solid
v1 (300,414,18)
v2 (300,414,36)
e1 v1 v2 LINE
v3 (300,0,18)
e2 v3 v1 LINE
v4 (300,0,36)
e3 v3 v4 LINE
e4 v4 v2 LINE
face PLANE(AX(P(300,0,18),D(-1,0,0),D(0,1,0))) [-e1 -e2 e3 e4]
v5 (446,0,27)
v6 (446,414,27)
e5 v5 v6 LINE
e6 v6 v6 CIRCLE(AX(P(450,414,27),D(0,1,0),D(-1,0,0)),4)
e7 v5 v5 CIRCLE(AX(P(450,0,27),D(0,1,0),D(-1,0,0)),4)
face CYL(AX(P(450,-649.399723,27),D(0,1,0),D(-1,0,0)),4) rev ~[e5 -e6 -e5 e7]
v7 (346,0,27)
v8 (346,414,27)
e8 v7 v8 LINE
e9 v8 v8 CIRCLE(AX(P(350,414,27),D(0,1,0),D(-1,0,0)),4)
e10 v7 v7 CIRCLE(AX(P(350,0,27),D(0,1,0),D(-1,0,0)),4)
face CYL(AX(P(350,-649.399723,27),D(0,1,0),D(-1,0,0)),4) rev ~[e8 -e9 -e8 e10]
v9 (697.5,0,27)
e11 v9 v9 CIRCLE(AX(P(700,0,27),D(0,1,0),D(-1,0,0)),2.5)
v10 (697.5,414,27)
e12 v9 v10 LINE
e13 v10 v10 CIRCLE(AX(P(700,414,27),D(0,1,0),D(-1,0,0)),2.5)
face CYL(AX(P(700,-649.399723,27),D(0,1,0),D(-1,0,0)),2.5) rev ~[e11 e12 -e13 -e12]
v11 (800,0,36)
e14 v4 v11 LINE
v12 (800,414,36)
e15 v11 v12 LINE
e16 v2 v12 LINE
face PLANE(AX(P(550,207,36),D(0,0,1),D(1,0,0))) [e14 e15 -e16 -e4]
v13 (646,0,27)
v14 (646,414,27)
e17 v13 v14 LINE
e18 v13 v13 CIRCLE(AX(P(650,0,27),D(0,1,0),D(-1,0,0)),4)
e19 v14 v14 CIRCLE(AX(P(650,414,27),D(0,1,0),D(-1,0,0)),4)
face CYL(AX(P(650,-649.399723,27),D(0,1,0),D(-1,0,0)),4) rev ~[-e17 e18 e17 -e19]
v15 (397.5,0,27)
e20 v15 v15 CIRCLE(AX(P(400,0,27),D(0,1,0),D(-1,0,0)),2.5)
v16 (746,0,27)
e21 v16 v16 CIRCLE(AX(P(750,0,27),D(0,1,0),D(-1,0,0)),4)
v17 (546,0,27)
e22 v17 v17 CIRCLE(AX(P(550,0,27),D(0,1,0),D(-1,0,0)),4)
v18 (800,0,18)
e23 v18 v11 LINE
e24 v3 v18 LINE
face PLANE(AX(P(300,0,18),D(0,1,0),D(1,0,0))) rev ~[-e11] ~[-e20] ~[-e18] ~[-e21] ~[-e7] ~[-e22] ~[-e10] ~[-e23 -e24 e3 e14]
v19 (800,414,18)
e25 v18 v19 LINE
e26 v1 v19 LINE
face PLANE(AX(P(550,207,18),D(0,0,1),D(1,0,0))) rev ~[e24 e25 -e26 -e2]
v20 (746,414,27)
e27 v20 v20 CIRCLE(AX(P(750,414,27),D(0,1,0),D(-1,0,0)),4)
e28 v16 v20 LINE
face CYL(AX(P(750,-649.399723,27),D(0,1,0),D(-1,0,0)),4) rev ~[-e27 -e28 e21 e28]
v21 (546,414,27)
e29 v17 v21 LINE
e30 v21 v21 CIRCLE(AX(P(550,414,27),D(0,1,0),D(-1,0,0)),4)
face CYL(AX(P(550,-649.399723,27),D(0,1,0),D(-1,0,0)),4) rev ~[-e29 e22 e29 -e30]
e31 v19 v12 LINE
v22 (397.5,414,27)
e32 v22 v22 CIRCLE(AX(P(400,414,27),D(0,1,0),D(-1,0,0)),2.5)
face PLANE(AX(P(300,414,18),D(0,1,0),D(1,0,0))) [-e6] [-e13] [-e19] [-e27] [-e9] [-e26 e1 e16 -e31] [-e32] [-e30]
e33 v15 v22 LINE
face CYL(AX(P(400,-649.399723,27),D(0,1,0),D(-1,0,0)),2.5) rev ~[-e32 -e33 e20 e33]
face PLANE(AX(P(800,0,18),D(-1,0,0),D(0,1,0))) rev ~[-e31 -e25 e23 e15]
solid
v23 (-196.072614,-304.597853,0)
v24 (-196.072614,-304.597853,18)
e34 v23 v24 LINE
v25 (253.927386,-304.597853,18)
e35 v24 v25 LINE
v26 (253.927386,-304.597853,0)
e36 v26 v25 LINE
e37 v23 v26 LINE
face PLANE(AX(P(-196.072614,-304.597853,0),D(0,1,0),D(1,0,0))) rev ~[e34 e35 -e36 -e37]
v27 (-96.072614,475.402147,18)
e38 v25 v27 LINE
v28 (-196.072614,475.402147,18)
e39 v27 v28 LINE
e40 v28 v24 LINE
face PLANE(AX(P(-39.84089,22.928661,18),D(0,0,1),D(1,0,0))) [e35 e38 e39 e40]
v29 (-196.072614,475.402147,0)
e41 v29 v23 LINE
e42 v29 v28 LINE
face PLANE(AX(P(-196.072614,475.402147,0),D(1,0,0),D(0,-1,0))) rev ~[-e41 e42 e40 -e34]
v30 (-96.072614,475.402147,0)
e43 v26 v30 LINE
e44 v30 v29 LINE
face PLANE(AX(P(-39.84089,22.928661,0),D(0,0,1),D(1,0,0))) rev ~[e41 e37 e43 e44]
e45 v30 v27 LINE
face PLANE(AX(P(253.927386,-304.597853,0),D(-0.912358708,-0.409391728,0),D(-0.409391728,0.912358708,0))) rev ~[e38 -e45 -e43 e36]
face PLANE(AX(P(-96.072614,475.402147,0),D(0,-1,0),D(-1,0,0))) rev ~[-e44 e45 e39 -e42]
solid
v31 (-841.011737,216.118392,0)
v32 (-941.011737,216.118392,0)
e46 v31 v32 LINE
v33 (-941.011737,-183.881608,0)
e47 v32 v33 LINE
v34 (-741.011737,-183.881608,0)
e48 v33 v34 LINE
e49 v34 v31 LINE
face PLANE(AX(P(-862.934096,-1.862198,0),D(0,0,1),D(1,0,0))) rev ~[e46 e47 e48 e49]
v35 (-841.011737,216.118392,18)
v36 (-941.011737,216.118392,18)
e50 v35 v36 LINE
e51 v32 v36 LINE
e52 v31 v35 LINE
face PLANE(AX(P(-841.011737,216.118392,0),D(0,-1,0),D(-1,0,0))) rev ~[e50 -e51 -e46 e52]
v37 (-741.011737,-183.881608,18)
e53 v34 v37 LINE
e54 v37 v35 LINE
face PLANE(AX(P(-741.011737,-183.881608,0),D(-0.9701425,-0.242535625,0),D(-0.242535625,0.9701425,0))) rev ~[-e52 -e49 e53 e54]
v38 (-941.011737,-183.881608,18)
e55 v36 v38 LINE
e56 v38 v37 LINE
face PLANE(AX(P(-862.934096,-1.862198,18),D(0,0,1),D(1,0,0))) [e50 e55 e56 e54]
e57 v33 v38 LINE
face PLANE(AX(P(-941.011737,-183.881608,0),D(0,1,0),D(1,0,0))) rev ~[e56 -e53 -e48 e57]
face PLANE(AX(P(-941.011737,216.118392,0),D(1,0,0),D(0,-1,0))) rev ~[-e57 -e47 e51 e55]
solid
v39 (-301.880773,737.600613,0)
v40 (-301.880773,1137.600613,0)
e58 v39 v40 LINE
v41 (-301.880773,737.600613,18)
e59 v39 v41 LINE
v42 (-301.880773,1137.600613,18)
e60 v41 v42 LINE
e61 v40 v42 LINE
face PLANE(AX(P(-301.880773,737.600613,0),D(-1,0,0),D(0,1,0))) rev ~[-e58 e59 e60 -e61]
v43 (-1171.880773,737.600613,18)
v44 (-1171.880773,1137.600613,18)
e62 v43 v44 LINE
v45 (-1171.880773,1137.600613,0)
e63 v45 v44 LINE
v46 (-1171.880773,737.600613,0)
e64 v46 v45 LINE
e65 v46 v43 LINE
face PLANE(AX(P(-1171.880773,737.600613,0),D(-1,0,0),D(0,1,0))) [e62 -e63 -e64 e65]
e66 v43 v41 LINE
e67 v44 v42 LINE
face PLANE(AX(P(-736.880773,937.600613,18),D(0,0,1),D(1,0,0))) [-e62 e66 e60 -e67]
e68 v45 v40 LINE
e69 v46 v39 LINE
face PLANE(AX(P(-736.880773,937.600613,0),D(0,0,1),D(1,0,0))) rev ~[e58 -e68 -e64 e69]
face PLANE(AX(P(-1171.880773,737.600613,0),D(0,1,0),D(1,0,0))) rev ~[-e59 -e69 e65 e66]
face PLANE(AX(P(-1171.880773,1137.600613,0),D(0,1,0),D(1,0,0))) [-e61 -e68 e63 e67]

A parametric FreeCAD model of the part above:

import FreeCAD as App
import Part
import Sketcher
from FreeCAD import Vector
Q = App.Units.Quantity


def add_polygon(sketch, points):
    """Adds a closed chain of lines whose ends are joined by coincident constraints."""
    first, n = sketch.GeometryCount, len(points)
    for a, b in zip(points, points[1:] + points[:1]):
        sketch.addGeometry(Part.LineSegment(App.Vector(*a, 0), App.Vector(*b, 0)), False)
    for i in range(n):
        sketch.addConstraint(Sketcher.Constraint("Coincident", first + i, 2, first + (i + 1) % n, 1))

doc = App.newDocument("Part")
body = doc.addObject("PartDesign::Body", "Body")

sketch1 = doc.addObject("Sketcher::SketchObject", "Sketch")
body.addObject(sketch1)
sketch1.AttachmentSupport = (doc.XY_Plane, [""])
sketch1.MapMode = "FlatFace"
add_polygon(sketch1, [(-196, 475), (-196, -305), (254, -305), (-96, 475)])
sketch1.addConstraint([
    Sketcher.Constraint("Vertical", 0),
    Sketcher.Constraint("Horizontal", 1),
    Sketcher.Constraint("Horizontal", 3),
    Sketcher.Constraint("DistanceX", 1, 1, 1, 2, Q("450 mm")),
    Sketcher.Constraint("DistanceX", 3, 2, 3, 1, Q("100 mm")),
    Sketcher.Constraint("DistanceY", 0, 2, 0, 1, Q("780 mm")),
    Sketcher.Constraint("DistanceX", 0, 2, -1, 1, Q("196.072614 mm")),
    Sketcher.Constraint("DistanceY", 0, 2, -1, 1, Q("304.597853 mm")),
])
pad1 = doc.addObject("PartDesign::Pad", "Pad")
body.addObject(pad1)
pad1.Profile = sketch1
pad1.Length = 18
body2 = doc.addObject("PartDesign::Body", "Body001")

sketch2 = doc.addObject("Sketcher::SketchObject", "Sketch001")
body2.addObject(sketch2)
sketch2.AttachmentSupport = (doc.getObject("XY_Plane001"), [""])
sketch2.MapMode = "FlatFace"
sketch2.AttachmentOffset = App.Placement(Vector(0, 0, 18), App.Rotation())
add_polygon(sketch2, [(300, 414), (300, 0), (800, 0), (800, 414)])
sketch2.addConstraint([
    Sketcher.Constraint("Vertical", 0),
    Sketcher.Constraint("Horizontal", 1),
    Sketcher.Constraint("Vertical", 2),
    Sketcher.Constraint("Horizontal", 3),
    Sketcher.Constraint("PointOnObject", 0, 2, -1),
    Sketcher.Constraint("DistanceX", 1, 1, 1, 2, Q("500 mm")),
    Sketcher.Constraint("DistanceY", 0, 2, 0, 1, Q("414 mm")),
    Sketcher.Constraint("DistanceX", -1, 1, 0, 2, Q("300 mm")),
])
pad2 = doc.addObject("PartDesign::Pad", "Pad001")
body2.addObject(pad2)
pad2.Profile = sketch2
pad2.Length = 18

sketch3 = doc.addObject("Sketcher::SketchObject", "Sketch002")
body2.addObject(sketch3)
sketch3.AttachmentSupport = (doc.getObject("XY_Plane001"), [""])
sketch3.MapMode = "FlatFace"
sketch3.AttachmentOffset = App.Placement(Vector(0, 0, 18), App.Rotation())
add_polygon(sketch3, [(300, 414), (300, 0), (800, 0), (800, 414)])
sketch3.addConstraint([
    Sketcher.Constraint("Vertical", 0),
    Sketcher.Constraint("Horizontal", 1),
    Sketcher.Constraint("Vertical", 2),
    Sketcher.Constraint("Horizontal", 3),
    Sketcher.Constraint("PointOnObject", 0, 2, -1),
    Sketcher.Constraint("DistanceX", 1, 1, 1, 2, Q("500 mm")),
    Sketcher.Constraint("DistanceY", 0, 2, 0, 1, Q("414 mm")),
    Sketcher.Constraint("DistanceX", -1, 1, 0, 2, Q("300 mm")),
])
pad3 = doc.addObject("PartDesign::Pad", "Pad002")
body2.addObject(pad3)
pad3.Profile = sketch3
pad3.Length = 18

sketch4 = doc.addObject("Sketcher::SketchObject", "Sketch003")
body2.addObject(sketch4)
sketch4.AttachmentSupport = (doc.getObject("XZ_Plane001"), [""])
sketch4.MapMode = "FlatFace"
sketch4.addGeometry([
    Part.Circle(Vector(350, 27, 0), Vector(0, 0, 1), 4),
    Part.Circle(Vector(450, 27, 0), Vector(0, 0, 1), 4),
    Part.Circle(Vector(550, 27, 0), Vector(0, 0, 1), 4),
    Part.Circle(Vector(650, 27, 0), Vector(0, 0, 1), 4),
    Part.Circle(Vector(750, 27, 0), Vector(0, 0, 1), 4),
], False)
sketch4.addConstraint([
    Sketcher.Constraint("Equal", 0, 1),
    Sketcher.Constraint("Equal", 1, 2),
    Sketcher.Constraint("Equal", 2, 3),
    Sketcher.Constraint("Equal", 3, 4),
    Sketcher.Constraint("Horizontal", 0, 3, 1, 3),
    Sketcher.Constraint("Horizontal", 1, 3, 2, 3),
    Sketcher.Constraint("Horizontal", 2, 3, 3, 3),
    Sketcher.Constraint("Horizontal", 3, 3, 4, 3),
    Sketcher.Constraint("Diameter", 0, Q("8 mm")),
    Sketcher.Constraint("DistanceX", -1, 1, 0, 3, Q("350 mm")),
    Sketcher.Constraint("DistanceY", -1, 1, 0, 3, Q("27 mm")),
    Sketcher.Constraint("DistanceX", -1, 1, 1, 3, Q("450 mm")),
    Sketcher.Constraint("DistanceX", -1, 1, 2, 3, Q("550 mm")),
    Sketcher.Constraint("DistanceX", -1, 1, 3, 3, Q("650 mm")),
    Sketcher.Constraint("DistanceX", -1, 1, 4, 3, Q("750 mm")),
])
doc.recompute()
hole = doc.addObject("PartDesign::Hole", "Hole")
body2.addObject(hole)
hole.Profile = sketch4
hole.ThreadType = "None"
hole.Diameter = 8
hole.DepthType = "ThroughAll"

sketch5 = doc.addObject("Sketcher::SketchObject", "Sketch004")
body2.addObject(sketch5)
sketch5.AttachmentSupport = (doc.getObject("XZ_Plane001"), [""])
sketch5.MapMode = "FlatFace"
sketch5.addGeometry([
    Part.Circle(Vector(400, 27, 0), Vector(0, 0, 1), 2.5),
    Part.Circle(Vector(700, 27, 0), Vector(0, 0, 1), 2.5),
], False)
sketch5.addConstraint([
    Sketcher.Constraint("Equal", 0, 1),
    Sketcher.Constraint("Horizontal", 0, 3, 1, 3),
    Sketcher.Constraint("Diameter", 0, Q("5 mm")),
    Sketcher.Constraint("DistanceX", -1, 1, 0, 3, Q("400 mm")),
    Sketcher.Constraint("DistanceY", -1, 1, 0, 3, Q("27 mm")),
    Sketcher.Constraint("DistanceX", -1, 1, 1, 3, Q("700 mm")),
])
doc.recompute()
hole2 = doc.addObject("PartDesign::Hole", "Hole001")
body2.addObject(hole2)
hole2.Profile = sketch5
hole2.ThreadType = "None"
hole2.Diameter = 5
hole2.DepthType = "ThroughAll"
body3 = doc.addObject("PartDesign::Body", "Body002")

sketch6 = doc.addObject("Sketcher::SketchObject", "Sketch005")
body3.addObject(sketch6)
sketch6.AttachmentSupport = (doc.getObject("XY_Plane002"), [""])
sketch6.MapMode = "FlatFace"
add_polygon(sketch6, [(-941, 216), (-941, -184), (-741, -184), (-841, 216)])
sketch6.addConstraint([
    Sketcher.Constraint("Vertical", 0),
    Sketcher.Constraint("Horizontal", 1),
    Sketcher.Constraint("Horizontal", 3),
    Sketcher.Constraint("DistanceX", 1, 1, 1, 2, Q("200 mm")),
    Sketcher.Constraint("DistanceX", 3, 2, 3, 1, Q("100 mm")),
    Sketcher.Constraint("DistanceY", 0, 2, 0, 1, Q("400 mm")),
    Sketcher.Constraint("DistanceY", 0, 2, -1, 1, Q("183.881608 mm")),
    Sketcher.Constraint("DistanceX", 0, 2, -1, 1, Q("941.011737 mm")),
])
pad4 = doc.addObject("PartDesign::Pad", "Pad003")
body3.addObject(pad4)
pad4.Profile = sketch6
pad4.Length = 18
body4 = doc.addObject("PartDesign::Body", "Body003")

sketch7 = doc.addObject("Sketcher::SketchObject", "Sketch006")
body4.addObject(sketch7)
sketch7.AttachmentSupport = (doc.getObject("XY_Plane003"), [""])
sketch7.MapMode = "FlatFace"
add_polygon(sketch7, [(-1172, 1138), (-1172, 738), (-302, 738), (-302, 1138)])
sketch7.addConstraint([
    Sketcher.Constraint("Vertical", 0),
    Sketcher.Constraint("Horizontal", 1),
    Sketcher.Constraint("Vertical", 2),
    Sketcher.Constraint("Horizontal", 3),
    Sketcher.Constraint("DistanceX", 1, 1, 1, 2, Q("870 mm")),
    Sketcher.Constraint("DistanceY", 0, 2, 0, 1, Q("400 mm")),
    Sketcher.Constraint("DistanceX", 0, 2, -1, 1, Q("1171.880773 mm")),
    Sketcher.Constraint("DistanceY", -1, 1, 0, 2, Q("737.600613 mm")),
])
pad5 = doc.addObject("PartDesign::Pad", "Pad004")
body4.addObject(pad5)
pad5.Profile = sketch7
pad5.Length = 18

doc.recompute()
